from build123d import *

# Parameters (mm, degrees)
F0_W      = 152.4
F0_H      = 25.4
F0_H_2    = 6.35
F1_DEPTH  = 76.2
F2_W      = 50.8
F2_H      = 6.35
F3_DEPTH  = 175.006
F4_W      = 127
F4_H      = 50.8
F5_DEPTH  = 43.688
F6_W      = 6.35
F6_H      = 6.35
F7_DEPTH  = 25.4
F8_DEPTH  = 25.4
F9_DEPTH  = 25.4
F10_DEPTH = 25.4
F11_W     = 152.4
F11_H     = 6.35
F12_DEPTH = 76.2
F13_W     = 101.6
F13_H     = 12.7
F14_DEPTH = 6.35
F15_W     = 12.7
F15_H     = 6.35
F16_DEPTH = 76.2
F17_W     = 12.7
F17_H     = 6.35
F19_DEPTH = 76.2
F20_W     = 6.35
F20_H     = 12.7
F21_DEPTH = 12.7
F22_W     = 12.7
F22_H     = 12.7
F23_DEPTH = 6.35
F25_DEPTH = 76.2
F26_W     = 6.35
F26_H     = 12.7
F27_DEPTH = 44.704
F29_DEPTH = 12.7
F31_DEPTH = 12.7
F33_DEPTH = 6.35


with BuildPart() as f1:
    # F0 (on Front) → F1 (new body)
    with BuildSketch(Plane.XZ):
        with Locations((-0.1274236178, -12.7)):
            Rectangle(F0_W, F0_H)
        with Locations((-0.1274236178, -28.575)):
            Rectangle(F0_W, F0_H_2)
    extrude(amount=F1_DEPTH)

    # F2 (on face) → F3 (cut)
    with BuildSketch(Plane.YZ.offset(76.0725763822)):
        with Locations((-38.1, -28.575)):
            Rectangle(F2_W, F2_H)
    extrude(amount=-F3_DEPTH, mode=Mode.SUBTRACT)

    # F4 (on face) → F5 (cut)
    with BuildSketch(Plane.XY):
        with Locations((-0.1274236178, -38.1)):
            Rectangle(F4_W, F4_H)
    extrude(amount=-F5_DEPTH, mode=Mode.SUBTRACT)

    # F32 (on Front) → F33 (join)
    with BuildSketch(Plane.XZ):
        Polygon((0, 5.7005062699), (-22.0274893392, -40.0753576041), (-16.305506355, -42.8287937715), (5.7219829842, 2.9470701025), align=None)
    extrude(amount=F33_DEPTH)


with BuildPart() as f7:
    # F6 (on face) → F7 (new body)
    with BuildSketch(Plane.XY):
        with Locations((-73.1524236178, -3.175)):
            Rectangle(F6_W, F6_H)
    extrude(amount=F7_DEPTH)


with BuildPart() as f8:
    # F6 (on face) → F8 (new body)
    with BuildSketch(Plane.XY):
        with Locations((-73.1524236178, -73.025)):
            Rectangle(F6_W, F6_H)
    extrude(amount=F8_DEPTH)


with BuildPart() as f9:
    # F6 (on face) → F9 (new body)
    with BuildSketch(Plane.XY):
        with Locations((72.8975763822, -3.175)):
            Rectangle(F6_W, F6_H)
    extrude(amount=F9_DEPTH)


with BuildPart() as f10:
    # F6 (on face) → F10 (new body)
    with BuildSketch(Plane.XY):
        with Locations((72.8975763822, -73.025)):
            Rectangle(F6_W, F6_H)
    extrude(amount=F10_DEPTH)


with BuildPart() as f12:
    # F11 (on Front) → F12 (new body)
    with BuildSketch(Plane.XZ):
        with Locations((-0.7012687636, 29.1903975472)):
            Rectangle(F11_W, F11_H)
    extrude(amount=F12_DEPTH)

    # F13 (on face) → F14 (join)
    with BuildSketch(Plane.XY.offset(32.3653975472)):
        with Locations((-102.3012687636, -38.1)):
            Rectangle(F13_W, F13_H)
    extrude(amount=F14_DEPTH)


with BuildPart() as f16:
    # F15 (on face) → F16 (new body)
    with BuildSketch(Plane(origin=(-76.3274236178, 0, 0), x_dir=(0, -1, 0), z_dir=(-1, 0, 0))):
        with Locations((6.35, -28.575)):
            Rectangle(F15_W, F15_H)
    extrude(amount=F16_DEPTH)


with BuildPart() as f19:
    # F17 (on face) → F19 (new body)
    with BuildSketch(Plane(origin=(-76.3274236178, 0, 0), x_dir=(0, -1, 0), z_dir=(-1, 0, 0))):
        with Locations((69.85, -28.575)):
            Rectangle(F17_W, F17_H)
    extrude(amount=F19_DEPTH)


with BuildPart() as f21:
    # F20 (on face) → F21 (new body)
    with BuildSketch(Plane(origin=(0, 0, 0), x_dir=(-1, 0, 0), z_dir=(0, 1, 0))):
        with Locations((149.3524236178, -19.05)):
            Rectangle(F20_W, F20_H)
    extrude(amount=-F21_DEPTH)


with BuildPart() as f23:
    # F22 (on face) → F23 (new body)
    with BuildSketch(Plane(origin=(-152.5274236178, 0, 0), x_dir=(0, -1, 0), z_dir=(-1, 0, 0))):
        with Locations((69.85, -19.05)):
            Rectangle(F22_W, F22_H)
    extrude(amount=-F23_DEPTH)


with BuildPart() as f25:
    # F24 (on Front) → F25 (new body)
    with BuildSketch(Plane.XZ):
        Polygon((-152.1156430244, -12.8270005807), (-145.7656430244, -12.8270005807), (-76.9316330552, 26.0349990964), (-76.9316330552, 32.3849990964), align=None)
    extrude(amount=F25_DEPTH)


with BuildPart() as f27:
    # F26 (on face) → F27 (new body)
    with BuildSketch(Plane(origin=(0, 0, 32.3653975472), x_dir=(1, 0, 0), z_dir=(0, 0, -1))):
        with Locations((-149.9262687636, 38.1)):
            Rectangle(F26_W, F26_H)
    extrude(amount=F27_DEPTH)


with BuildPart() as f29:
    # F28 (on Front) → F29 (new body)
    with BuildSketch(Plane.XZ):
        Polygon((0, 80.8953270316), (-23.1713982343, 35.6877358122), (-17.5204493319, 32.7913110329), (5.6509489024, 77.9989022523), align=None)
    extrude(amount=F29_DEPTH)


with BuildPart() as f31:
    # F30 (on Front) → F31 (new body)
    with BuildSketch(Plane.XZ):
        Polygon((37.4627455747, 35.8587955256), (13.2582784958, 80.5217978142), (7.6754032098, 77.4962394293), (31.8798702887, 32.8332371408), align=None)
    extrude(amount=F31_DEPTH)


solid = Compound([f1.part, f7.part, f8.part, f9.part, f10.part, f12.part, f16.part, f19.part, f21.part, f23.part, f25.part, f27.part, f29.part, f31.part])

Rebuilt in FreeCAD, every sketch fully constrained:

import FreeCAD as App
import Part
import Sketcher

V = App.Vector
Q = App.Units.Quantity


def add_polygon(sketch, points):
    """Adds a closed chain of lines whose ends are joined by coincident constraints."""
    first, n = sketch.GeometryCount, len(points)
    for a, b in zip(points, points[1:] + points[:1]):
        sketch.addGeometry(Part.LineSegment(App.Vector(*a, 0), App.Vector(*b, 0)), False)
    for i in range(n):
        sketch.addConstraint(Sketcher.Constraint("Coincident", first + i, 2, first + (i + 1) % n, 1))

doc = App.newDocument("Part")
body = doc.addObject("PartDesign::Body", "Body")

# Sketch on XZ plane
sketch1 = body.newObject("Sketcher::SketchObject", "Sketch")
sketch1.AttachmentSupport = (doc.getObject("XZ_Plane"), [""])
sketch1.MapMode = "FlatFace"
add_polygon(sketch1, [(-76, 0), (-76, -32), (76, -32), (76, 0)])  # lines 0-3
sketch1.addConstraint(Sketcher.Constraint("Vertical", 0))
sketch1.addConstraint(Sketcher.Constraint("Horizontal", 1))
sketch1.addConstraint(Sketcher.Constraint("Vertical", 2))
sketch1.addConstraint(Sketcher.Constraint("Horizontal", 3))
sketch1.addConstraint(Sketcher.Constraint("PointOnObject", 2, 2, -1))
sketch1.addConstraint(Sketcher.Constraint("DistanceX", 1, 1, 1, 2, Q("6 in")))
sketch1.addConstraint(Sketcher.Constraint("DistanceY", 0, 2, 0, 1, Q("1.25 in")))
sketch1.addConstraint(Sketcher.Constraint("DistanceX", 0, 2, -1, 1, Q("76.327424 mm")))
pad1 = body.newObject("PartDesign::Pad", "Pad")
pad1.Profile = sketch1
pad1.Length = Q("3 in")

# Sketch on YZ plane
sketch2 = body.newObject("Sketcher::SketchObject", "Sketch001")
sketch2.AttachmentSupport = (doc.getObject("YZ_Plane"), [""])
sketch2.MapMode = "FlatFace"
sketch2.AttachmentOffset = App.Placement(V(0, 0, 76.072576), App.Rotation())
add_polygon(sketch2, [(-64, -25), (-64, -32), (-13, -32), (-13, -25)])  # lines 0-3
sketch2.addConstraint(Sketcher.Constraint("Vertical", 0))
sketch2.addConstraint(Sketcher.Constraint("Horizontal", 1))
sketch2.addConstraint(Sketcher.Constraint("Vertical", 2))
sketch2.addConstraint(Sketcher.Constraint("Horizontal", 3))
sketch2.addConstraint(Sketcher.Constraint("DistanceX", 1, 1, 1, 2, Q("2 in")))
sketch2.addConstraint(Sketcher.Constraint("DistanceY", 2, 2, -1, 1, Q("1 in")))
sketch2.addConstraint(Sketcher.Constraint("DistanceY", 0, 2, 0, 1, Q("0.25 in")))
sketch2.addConstraint(Sketcher.Constraint("DistanceX", 0, 2, -1, 1, Q("2.5 in")))
pocket1 = body.newObject("PartDesign::Pocket", "Pocket")
pocket1.Profile = sketch2
pocket1.Length = Q("6.89 in")

# Sketch on XY plane
sketch3 = body.newObject("Sketcher::SketchObject", "Sketch002")
sketch3.AttachmentSupport = (doc.getObject("XY_Plane"), [""])
sketch3.MapMode = "FlatFace"
add_polygon(sketch3, [(-64, -13), (-64, -64), (63, -64), (63, -13)])  # lines 0-3
sketch3.addConstraint(Sketcher.Constraint("Vertical", 0))
sketch3.addConstraint(Sketcher.Constraint("Horizontal", 1))
sketch3.addConstraint(Sketcher.Constraint("Vertical", 2))
sketch3.addConstraint(Sketcher.Constraint("Horizontal", 3))
sketch3.addConstraint(Sketcher.Constraint("DistanceX", 1, 1, 1, 2, Q("5 in")))
sketch3.addConstraint(Sketcher.Constraint("DistanceY", 0, 2, 0, 1, Q("2 in")))
sketch3.addConstraint(Sketcher.Constraint("DistanceY", 0, 2, -1, 1, Q("2.5 in")))
sketch3.addConstraint(Sketcher.Constraint("DistanceX", 0, 2, -1, 1, Q("63.627424 mm")))
pocket2 = body.newObject("PartDesign::Pocket", "Pocket001")
pocket2.Profile = sketch3
pocket2.Length = Q("1.72 in")

# Sketch on XZ plane
sketch4 = body.newObject("Sketcher::SketchObject", "Sketch003")
sketch4.AttachmentSupport = (doc.getObject("XZ_Plane"), [""])
sketch4.MapMode = "FlatFace"
add_polygon(sketch4, [(0, 6), (-22, -40), (-16, -43), (6, 3)])  # lines 0-3
sketch4.addConstraint(Sketcher.Constraint("PointOnObject", 3, 2, -2))
sketch4.addConstraint(Sketcher.Constraint("Perpendicular", 0, 1))
sketch4.addConstraint(Sketcher.Constraint("Perpendicular", 1, 2))
sketch4.addConstraint(Sketcher.Constraint("Perpendicular", 2, 3))
sketch4.addConstraint(Sketcher.Constraint("Distance", 0, Q("2 in")))
sketch4.addConstraint(Sketcher.Constraint("Distance", 1, Q("0.25 in")))
sketch4.addConstraint(Sketcher.Constraint("DistanceY", 1, 2, 3, 2, Q("48.5293 mm")))
sketch4.addConstraint(Sketcher.Constraint("DistanceY", -1, 1, 2, 2, Q("2.94707 mm")))
pad2 = body.newObject("PartDesign::Pad", "Pad001")
pad2.Profile = sketch4
pad2.Length = Q("0.25 in")
body2 = doc.addObject("PartDesign::Body", "Body001")

# Sketch on XY plane
sketch5 = body2.newObject("Sketcher::SketchObject", "Sketch004")
sketch5.AttachmentSupport = (doc.getObject("XY_Plane001"), [""])
sketch5.MapMode = "FlatFace"
add_polygon(sketch5, [(-76, 0), (-76, -6), (-70, -6), (-70, 0)])  # lines 0-3
sketch5.addConstraint(Sketcher.Constraint("Vertical", 0))
sketch5.addConstraint(Sketcher.Constraint("Horizontal", 1))
sketch5.addConstraint(Sketcher.Constraint("Vertical", 2))
sketch5.addConstraint(Sketcher.Constraint("Horizontal", 3))
sketch5.addConstraint(Sketcher.Constraint("PointOnObject", 2, 2, -1))
sketch5.addConstraint(Sketcher.Constraint("Equal", 3, 0))
sketch5.addConstraint(Sketcher.Constraint("DistanceX", 1, 1, 1, 2, Q("0.25 in")))
sketch5.addConstraint(Sketcher.Constraint("DistanceX", 0, 2, -1, 1, Q("76.327424 mm")))
pad3 = body2.newObject("PartDesign::Pad", "Pad002")
pad3.Profile = sketch5
pad3.Length = Q("1 in")
body3 = doc.addObject("PartDesign::Body", "Body002")

# Sketch on XY plane
sketch6 = body3.newObject("Sketcher::SketchObject", "Sketch005")
sketch6.AttachmentSupport = (doc.getObject("XY_Plane002"), [""])
sketch6.MapMode = "FlatFace"
add_polygon(sketch6, [(-76, -70), (-76, -76), (-70, -76), (-70, -70)])  # lines 0-3
sketch6.addConstraint(Sketcher.Constraint("Vertical", 0))
sketch6.addConstraint(Sketcher.Constraint("Horizontal", 1))
sketch6.addConstraint(Sketcher.Constraint("Vertical", 2))
sketch6.addConstraint(Sketcher.Constraint("Horizontal", 3))
sketch6.addConstraint(Sketcher.Constraint("Equal", 3, 0))
sketch6.addConstraint(Sketcher.Constraint("DistanceY", 0, 2, -1, 1, Q("3 in")))
sketch6.addConstraint(Sketcher.Constraint("DistanceX", 1, 1, 1, 2, Q("0.25 in")))
sketch6.addConstraint(Sketcher.Constraint("DistanceX", 0, 2, -1, 1, Q("76.327424 mm")))
pad4 = body3.newObject("PartDesign::Pad", "Pad003")
pad4.Profile = sketch6
pad4.Length = Q("1 in")
body4 = doc.addObject("PartDesign::Body", "Body003")

# Sketch on XY plane
sketch7 = body4.newObject("Sketcher::SketchObject", "Sketch006")
sketch7.AttachmentSupport = (doc.getObject("XY_Plane003"), [""])
sketch7.MapMode = "FlatFace"
add_polygon(sketch7, [(70, 0), (70, -6), (76, -6), (76, 0)])  # lines 0-3
sketch7.addConstraint(Sketcher.Constraint("Vertical", 0))
sketch7.addConstraint(Sketcher.Constraint("Horizontal", 1))
sketch7.addConstraint(Sketcher.Constraint("Vertical", 2))
sketch7.addConstraint(Sketcher.Constraint("Horizontal", 3))
sketch7.addConstraint(Sketcher.Constraint("PointOnObject", 2, 2, -1))
sketch7.addConstraint(Sketcher.Constraint("Equal", 3, 0))
sketch7.addConstraint(Sketcher.Constraint("DistanceX", 1, 1, 1, 2, Q("0.25 in")))
sketch7.addConstraint(Sketcher.Constraint("DistanceX", -1, 1, 0, 2, Q("69.722576 mm")))
pad5 = body4.newObject("PartDesign::Pad", "Pad004")
pad5.Profile = sketch7
pad5.Length = Q("1 in")
body5 = doc.addObject("PartDesign::Body", "Body004")

# Sketch on XY plane
sketch8 = body5.newObject("Sketcher::SketchObject", "Sketch007")
sketch8.AttachmentSupport = (doc.getObject("XY_Plane004"), [""])
sketch8.MapMode = "FlatFace"
add_polygon(sketch8, [(70, -70), (70, -76), (76, -76), (76, -70)])  # lines 0-3
sketch8.addConstraint(Sketcher.Constraint("Vertical", 0))
sketch8.addConstraint(Sketcher.Constraint("Horizontal", 1))
sketch8.addConstraint(Sketcher.Constraint("Vertical", 2))
sketch8.addConstraint(Sketcher.Constraint("Horizontal", 3))
sketch8.addConstraint(Sketcher.Constraint("Equal", 3, 0))
sketch8.addConstraint(Sketcher.Constraint("DistanceY", 0, 2, -1, 1, Q("3 in")))
sketch8.addConstraint(Sketcher.Constraint("DistanceX", 1, 1, 1, 2, Q("0.25 in")))
sketch8.addConstraint(Sketcher.Constraint("DistanceX", -1, 1, 0, 2, Q("69.722576 mm")))
pad6 = body5.newObject("PartDesign::Pad", "Pad005")
pad6.Profile = sketch8
pad6.Length = Q("1 in")
body6 = doc.addObject("PartDesign::Body", "Body005")

# Sketch on XZ plane
sketch9 = body6.newObject("Sketcher::SketchObject", "Sketch008")
sketch9.AttachmentSupport = (doc.getObject("XZ_Plane005"), [""])
sketch9.MapMode = "FlatFace"
add_polygon(sketch9, [(-77, 32), (-77, 26), (75, 26), (75, 32)])  # lines 0-3
sketch9.addConstraint(Sketcher.Constraint("Vertical", 0))
sketch9.addConstraint(Sketcher.Constraint("Horizontal", 1))
sketch9.addConstraint(Sketcher.Constraint("Vertical", 2))
sketch9.addConstraint(Sketcher.Constraint("Horizontal", 3))
sketch9.addConstraint(Sketcher.Constraint("DistanceX", 1, 1, 1, 2, Q("6 in")))
sketch9.addConstraint(Sketcher.Constraint("DistanceY", 0, 2, 0, 1, Q("0.25 in")))
sketch9.addConstraint(Sketcher.Constraint("DistanceX", 0, 2, -1, 1, Q("76.901269 mm")))
sketch9.addConstraint(Sketcher.Constraint("DistanceY", -1, 1, 0, 2, Q("26.015398 mm")))
pad7 = body6.newObject("PartDesign::Pad", "Pad006")
pad7.Profile = sketch9
pad7.Length = Q("3 in")

# Sketch on XY plane
sketch10 = body6.newObject("Sketcher::SketchObject", "Sketch009")
sketch10.AttachmentSupport = (doc.getObject("XY_Plane005"), [""])
sketch10.MapMode = "FlatFace"
sketch10.AttachmentOffset = App.Placement(V(0, 0, 32.365398), App.Rotation())
add_polygon(sketch10, [(-153, -32), (-153, -44), (-52, -44), (-52, -32)])  # lines 0-3
sketch10.addConstraint(Sketcher.Constraint("Vertical", 0))
sketch10.addConstraint(Sketcher.Constraint("Horizontal", 1))
sketch10.addConstraint(Sketcher.Constraint("Vertical", 2))
sketch10.addConstraint(Sketcher.Constraint("Horizontal", 3))
sketch10.addConstraint(Sketcher.Constraint("DistanceX", 1, 1, 1, 2, Q("4 in")))
sketch10.addConstraint(Sketcher.Constraint("DistanceY", 0, 2, 0, 1, Q("0.5 in")))
sketch10.addConstraint(Sketcher.Constraint("DistanceY", 0, 2, -1, 1, Q("1.75 in")))
sketch10.addConstraint(Sketcher.Constraint("DistanceX", 0, 2, -1, 1, Q("153.101269 mm")))
pad8 = body6.newObject("PartDesign::Pad", "Pad007")
pad8.Profile = sketch10
pad8.Length = Q("0.25 in")
body7 = doc.addObject("PartDesign::Body", "Body006")

# Sketch on YZ plane
sketch11 = body7.newObject("Sketcher::SketchObject", "Sketch010")
sketch11.AttachmentSupport = (doc.getObject("YZ_Plane006"), [""])
sketch11.MapMode = "FlatFace"
sketch11.AttachmentOffset = App.Placement(V(0, 0, -76.327424), App.Rotation())
add_polygon(sketch11, [(0, -25), (0, -32), (-13, -32), (-13, -25)])  # lines 0-3
sketch11.addConstraint(Sketcher.Constraint("Vertical", 0))
sketch11.addConstraint(Sketcher.Constraint("Horizontal", 1))
sketch11.addConstraint(Sketcher.Constraint("Vertical", 2))
sketch11.addConstraint(Sketcher.Constraint("Horizontal", 3))
sketch11.addConstraint(Sketcher.Constraint("PointOnObject", 0, 2, -2))
sketch11.addConstraint(Sketcher.Constraint("DistanceX", 1, 2, 1, 1, Q("0.5 in")))
sketch11.addConstraint(Sketcher.Constraint("DistanceY", 2, 2, -1, 1, Q("1 in")))
sketch11.addConstraint(Sketcher.Constraint("DistanceY", 0, 2, 0, 1, Q("0.25 in")))
pad9 = body7.newObject("PartDesign::Pad", "Pad008")
pad9.Profile = sketch11
pad9.Length = Q("3 in")
pad9.Reversed = True
body8 = doc.addObject("PartDesign::Body", "Body007")

# Sketch on YZ plane
sketch12 = body8.newObject("Sketcher::SketchObject", "Sketch011")
sketch12.AttachmentSupport = (doc.getObject("YZ_Plane007"), [""])
sketch12.MapMode = "FlatFace"
sketch12.AttachmentOffset = App.Placement(V(0, 0, -76.327424), App.Rotation())
add_polygon(sketch12, [(-64, -25), (-64, -32), (-76, -32), (-76, -25)])  # lines 0-3
sketch12.addConstraint(Sketcher.Constraint("Vertical", 0))
sketch12.addConstraint(Sketcher.Constraint("Horizontal", 1))
sketch12.addConstraint(Sketcher.Constraint("Vertical", 2))
sketch12.addConstraint(Sketcher.Constraint("Horizontal", 3))
sketch12.addConstraint(Sketcher.Constraint("DistanceX", 1, 2, 1, 1, Q("0.5 in")))
sketch12.addConstraint(Sketcher.Constraint("DistanceX", 1, 2, -1, 1, Q("3 in")))
sketch12.addConstraint(Sketcher.Constraint("DistanceY", 2, 2, -1, 1, Q("1 in")))
sketch12.addConstraint(Sketcher.Constraint("DistanceY", 0, 2, 0, 1, Q("0.25 in")))
pad10 = body8.newObject("PartDesign::Pad", "Pad009")
pad10.Profile = sketch12
pad10.Length = Q("3 in")
pad10.Reversed = True
body9 = doc.addObject("PartDesign::Body", "Body008")

# Sketch on XZ plane
sketch13 = body9.newObject("Sketcher::SketchObject", "Sketch012")
sketch13.AttachmentSupport = (doc.getObject("XZ_Plane008"), [""])
sketch13.MapMode = "FlatFace"
add_polygon(sketch13, [(-146, -13), (-146, -25), (-153, -25), (-153, -13)])  # lines 0-3
sketch13.addConstraint(Sketcher.Constraint("Vertical", 0))
sketch13.addConstraint(Sketcher.Constraint("Horizontal", 1))
sketch13.addConstraint(Sketcher.Constraint("Vertical", 2))
sketch13.addConstraint(Sketcher.Constraint("Horizontal", 3))
sketch13.addConstraint(Sketcher.Constraint("DistanceY", 0, 2, 0, 1, Q("0.5 in")))
sketch13.addConstraint(Sketcher.Constraint("DistanceY", 0, 2, -1, 1, Q("1 in")))
sketch13.addConstraint(Sketcher.Constraint("DistanceX", 1, 2, 1, 1, Q("0.25 in")))
sketch13.addConstraint(Sketcher.Constraint("DistanceX", 0, 2, -1, 1, Q("146.177424 mm")))
pad11 = body9.newObject("PartDesign::Pad", "Pad010")
pad11.Profile = sketch13
pad11.Length = Q("0.5 in")
body10 = doc.addObject("PartDesign::Body", "Body009")

# Sketch on YZ plane
sketch14 = body10.newObject("Sketcher::SketchObject", "Sketch013")
sketch14.AttachmentSupport = (doc.getObject("YZ_Plane009"), [""])
sketch14.MapMode = "FlatFace"
sketch14.AttachmentOffset = App.Placement(V(0, 0, -152.527424), App.Rotation())
add_polygon(sketch14, [(-64, -13), (-64, -25), (-76, -25), (-76, -13)])  # lines 0-3
sketch14.addConstraint(Sketcher.Constraint("Vertical", 0))
sketch14.addConstraint(Sketcher.Constraint("Horizontal", 1))
sketch14.addConstraint(Sketcher.Constraint("Vertical", 2))
sketch14.addConstraint(Sketcher.Constraint("Horizontal", 3))
sketch14.addConstraint(Sketcher.Constraint("Equal", 3, 0))
sketch14.addConstraint(Sketcher.Constraint("DistanceX", 1, 2, 1, 1, Q("0.5 in")))
sketch14.addConstraint(Sketcher.Constraint("DistanceY", 0, 2, -1, 1, Q("1 in")))
sketch14.addConstraint(Sketcher.Constraint("DistanceX", 1, 2, -1, 1, Q("3 in")))
pad12 = body10.newObject("PartDesign::Pad", "Pad011")
pad12.Profile = sketch14
pad12.Length = Q("0.25 in")
body11 = doc.addObject("PartDesign::Body", "Body010")

# Sketch on XZ plane
sketch15 = body11.newObject("Sketcher::SketchObject", "Sketch014")
sketch15.AttachmentSupport = (doc.getObject("XZ_Plane010"), [""])
sketch15.MapMode = "FlatFace"
add_polygon(sketch15, [(-152, -13), (-146, -13), (-77, 26), (-77, 32)])  # lines 0-3
sketch15.addConstraint(Sketcher.Constraint("Horizontal", 0))
sketch15.addConstraint(Sketcher.Constraint("Vertical", 2))
sketch15.addConstraint(Sketcher.Constraint("Equal", 0, 2))
sketch15.addConstraint(Sketcher.Constraint("DistanceX", 0, 1, 0, 2, Q("0.25 in")))
sketch15.addConstraint(Sketcher.Constraint("DistanceY", 0, 2, 1, 2, Q("1.53 in")))
sketch15.addConstraint(Sketcher.Constraint("DistanceY", 0, 2, -1, 1, Q("0.505 in")))
sketch15.addConstraint(Sketcher.Constraint("Distance", 1, Q("79.046669 mm")))
sketch15.addConstraint(Sketcher.Constraint("DistanceX", 0, 2, -1, 1, Q("145.765643 mm")))
pad13 = body11.newObject("PartDesign::Pad", "Pad012")
pad13.Profile = sketch15
pad13.Length = Q("3 in")
body12 = doc.addObject("PartDesign::Body", "Body011")

# Sketch on XY plane
sketch16 = body12.newObject("Sketcher::SketchObject", "Sketch015")
sketch16.AttachmentSupport = (doc.getObject("XY_Plane011"), [""])
sketch16.MapMode = "FlatFace"
sketch16.AttachmentOffset = App.Placement(V(0, 0, 32.365398), App.Rotation())
add_polygon(sketch16, [(-153, -44), (-153, -32), (-147, -32), (-147, -44)])  # lines 0-3
sketch16.addConstraint(Sketcher.Constraint("Vertical", 0))
sketch16.addConstraint(Sketcher.Constraint("Horizontal", 1))
sketch16.addConstraint(Sketcher.Constraint("Vertical", 2))
sketch16.addConstraint(Sketcher.Constraint("Horizontal", 3))
sketch16.addConstraint(Sketcher.Constraint("DistanceY", 0, 1, 0, 2, Q("0.5 in")))
sketch16.addConstraint(Sketcher.Constraint("DistanceX", 1, 1, 1, 2, Q("0.25 in")))
sketch16.addConstraint(Sketcher.Constraint("DistanceY", 0, 2, -1, 1, Q("1.25 in")))
sketch16.addConstraint(Sketcher.Constraint("DistanceX", 0, 2, -1, 1, Q("153.101269 mm")))
pad14 = body12.newObject("PartDesign::Pad", "Pad013")
pad14.Profile = sketch16
pad14.Length = Q("1.76 in")
pad14.Reversed = True
body13 = doc.addObject("PartDesign::Body", "Body012")

# Sketch on XZ plane
sketch17 = body13.newObject("Sketcher::SketchObject", "Sketch016")
sketch17.AttachmentSupport = (doc.getObject("XZ_Plane012"), [""])
sketch17.MapMode = "FlatFace"
add_polygon(sketch17, [(0, 81), (-23, 36), (-18, 33), (6, 78)])  # lines 0-3
sketch17.addConstraint(Sketcher.Constraint("PointOnObject", 3, 2, -2))
sketch17.addConstraint(Sketcher.Constraint("Perpendicular", 0, 1))
sketch17.addConstraint(Sketcher.Constraint("Perpendicular", 1, 2))
sketch17.addConstraint(Sketcher.Constraint("Perpendicular", 2, 3))
sketch17.addConstraint(Sketcher.Constraint("Distance", 0, Q("2 in")))
sketch17.addConstraint(Sketcher.Constraint("Distance", 1, Q("0.25 in")))
sketch17.addConstraint(Sketcher.Constraint("DistanceX", 0, 2, -1, 1, Q("23.171398 mm")))
sketch17.addConstraint(Sketcher.Constraint("DistanceY", -1, 1, 1, 2, Q("32.791311 mm")))
pad15 = body13.newObject("PartDesign::Pad", "Pad014")
pad15.Profile = sketch17
pad15.Length = Q("0.5 in")
body14 = doc.addObject("PartDesign::Body", "Body013")

# Sketch on XZ plane
sketch18 = body14.newObject("Sketcher::SketchObject", "Sketch017")
sketch18.AttachmentSupport = (doc.getObject("XZ_Plane013"), [""])
sketch18.MapMode = "FlatFace"
add_polygon(sketch18, [(37, 36), (13, 81), (8, 77), (32, 33)])  # lines 0-3
sketch18.addConstraint(Sketcher.Constraint("Perpendicular", 0, 1))
sketch18.addConstraint(Sketcher.Constraint("Perpendicular", 1, 2))
sketch18.addConstraint(Sketcher.Constraint("Perpendicular", 2, 3))
sketch18.addConstraint(Sketcher.Constraint("Distance", 0, Q("2 in")))
sketch18.addConstraint(Sketcher.Constraint("Distance", 1, Q("0.25 in")))
sketch18.addConstraint(Sketcher.Constraint("DistanceX", -1, 1, 0, 2, Q("13.258278 mm")))
sketch18.addConstraint(Sketcher.Constraint("DistanceY", -1, 1, 1, 2, Q("77.496239 mm")))
sketch18.addConstraint(Sketcher.Constraint("DistanceX", -1, 1, 2, 2, Q("31.87987 mm")))
pad16 = body14.newObject("PartDesign::Pad", "Pad015")
pad16.Profile = sketch18
pad16.Length = Q("0.5 in")

doc.recompute()
